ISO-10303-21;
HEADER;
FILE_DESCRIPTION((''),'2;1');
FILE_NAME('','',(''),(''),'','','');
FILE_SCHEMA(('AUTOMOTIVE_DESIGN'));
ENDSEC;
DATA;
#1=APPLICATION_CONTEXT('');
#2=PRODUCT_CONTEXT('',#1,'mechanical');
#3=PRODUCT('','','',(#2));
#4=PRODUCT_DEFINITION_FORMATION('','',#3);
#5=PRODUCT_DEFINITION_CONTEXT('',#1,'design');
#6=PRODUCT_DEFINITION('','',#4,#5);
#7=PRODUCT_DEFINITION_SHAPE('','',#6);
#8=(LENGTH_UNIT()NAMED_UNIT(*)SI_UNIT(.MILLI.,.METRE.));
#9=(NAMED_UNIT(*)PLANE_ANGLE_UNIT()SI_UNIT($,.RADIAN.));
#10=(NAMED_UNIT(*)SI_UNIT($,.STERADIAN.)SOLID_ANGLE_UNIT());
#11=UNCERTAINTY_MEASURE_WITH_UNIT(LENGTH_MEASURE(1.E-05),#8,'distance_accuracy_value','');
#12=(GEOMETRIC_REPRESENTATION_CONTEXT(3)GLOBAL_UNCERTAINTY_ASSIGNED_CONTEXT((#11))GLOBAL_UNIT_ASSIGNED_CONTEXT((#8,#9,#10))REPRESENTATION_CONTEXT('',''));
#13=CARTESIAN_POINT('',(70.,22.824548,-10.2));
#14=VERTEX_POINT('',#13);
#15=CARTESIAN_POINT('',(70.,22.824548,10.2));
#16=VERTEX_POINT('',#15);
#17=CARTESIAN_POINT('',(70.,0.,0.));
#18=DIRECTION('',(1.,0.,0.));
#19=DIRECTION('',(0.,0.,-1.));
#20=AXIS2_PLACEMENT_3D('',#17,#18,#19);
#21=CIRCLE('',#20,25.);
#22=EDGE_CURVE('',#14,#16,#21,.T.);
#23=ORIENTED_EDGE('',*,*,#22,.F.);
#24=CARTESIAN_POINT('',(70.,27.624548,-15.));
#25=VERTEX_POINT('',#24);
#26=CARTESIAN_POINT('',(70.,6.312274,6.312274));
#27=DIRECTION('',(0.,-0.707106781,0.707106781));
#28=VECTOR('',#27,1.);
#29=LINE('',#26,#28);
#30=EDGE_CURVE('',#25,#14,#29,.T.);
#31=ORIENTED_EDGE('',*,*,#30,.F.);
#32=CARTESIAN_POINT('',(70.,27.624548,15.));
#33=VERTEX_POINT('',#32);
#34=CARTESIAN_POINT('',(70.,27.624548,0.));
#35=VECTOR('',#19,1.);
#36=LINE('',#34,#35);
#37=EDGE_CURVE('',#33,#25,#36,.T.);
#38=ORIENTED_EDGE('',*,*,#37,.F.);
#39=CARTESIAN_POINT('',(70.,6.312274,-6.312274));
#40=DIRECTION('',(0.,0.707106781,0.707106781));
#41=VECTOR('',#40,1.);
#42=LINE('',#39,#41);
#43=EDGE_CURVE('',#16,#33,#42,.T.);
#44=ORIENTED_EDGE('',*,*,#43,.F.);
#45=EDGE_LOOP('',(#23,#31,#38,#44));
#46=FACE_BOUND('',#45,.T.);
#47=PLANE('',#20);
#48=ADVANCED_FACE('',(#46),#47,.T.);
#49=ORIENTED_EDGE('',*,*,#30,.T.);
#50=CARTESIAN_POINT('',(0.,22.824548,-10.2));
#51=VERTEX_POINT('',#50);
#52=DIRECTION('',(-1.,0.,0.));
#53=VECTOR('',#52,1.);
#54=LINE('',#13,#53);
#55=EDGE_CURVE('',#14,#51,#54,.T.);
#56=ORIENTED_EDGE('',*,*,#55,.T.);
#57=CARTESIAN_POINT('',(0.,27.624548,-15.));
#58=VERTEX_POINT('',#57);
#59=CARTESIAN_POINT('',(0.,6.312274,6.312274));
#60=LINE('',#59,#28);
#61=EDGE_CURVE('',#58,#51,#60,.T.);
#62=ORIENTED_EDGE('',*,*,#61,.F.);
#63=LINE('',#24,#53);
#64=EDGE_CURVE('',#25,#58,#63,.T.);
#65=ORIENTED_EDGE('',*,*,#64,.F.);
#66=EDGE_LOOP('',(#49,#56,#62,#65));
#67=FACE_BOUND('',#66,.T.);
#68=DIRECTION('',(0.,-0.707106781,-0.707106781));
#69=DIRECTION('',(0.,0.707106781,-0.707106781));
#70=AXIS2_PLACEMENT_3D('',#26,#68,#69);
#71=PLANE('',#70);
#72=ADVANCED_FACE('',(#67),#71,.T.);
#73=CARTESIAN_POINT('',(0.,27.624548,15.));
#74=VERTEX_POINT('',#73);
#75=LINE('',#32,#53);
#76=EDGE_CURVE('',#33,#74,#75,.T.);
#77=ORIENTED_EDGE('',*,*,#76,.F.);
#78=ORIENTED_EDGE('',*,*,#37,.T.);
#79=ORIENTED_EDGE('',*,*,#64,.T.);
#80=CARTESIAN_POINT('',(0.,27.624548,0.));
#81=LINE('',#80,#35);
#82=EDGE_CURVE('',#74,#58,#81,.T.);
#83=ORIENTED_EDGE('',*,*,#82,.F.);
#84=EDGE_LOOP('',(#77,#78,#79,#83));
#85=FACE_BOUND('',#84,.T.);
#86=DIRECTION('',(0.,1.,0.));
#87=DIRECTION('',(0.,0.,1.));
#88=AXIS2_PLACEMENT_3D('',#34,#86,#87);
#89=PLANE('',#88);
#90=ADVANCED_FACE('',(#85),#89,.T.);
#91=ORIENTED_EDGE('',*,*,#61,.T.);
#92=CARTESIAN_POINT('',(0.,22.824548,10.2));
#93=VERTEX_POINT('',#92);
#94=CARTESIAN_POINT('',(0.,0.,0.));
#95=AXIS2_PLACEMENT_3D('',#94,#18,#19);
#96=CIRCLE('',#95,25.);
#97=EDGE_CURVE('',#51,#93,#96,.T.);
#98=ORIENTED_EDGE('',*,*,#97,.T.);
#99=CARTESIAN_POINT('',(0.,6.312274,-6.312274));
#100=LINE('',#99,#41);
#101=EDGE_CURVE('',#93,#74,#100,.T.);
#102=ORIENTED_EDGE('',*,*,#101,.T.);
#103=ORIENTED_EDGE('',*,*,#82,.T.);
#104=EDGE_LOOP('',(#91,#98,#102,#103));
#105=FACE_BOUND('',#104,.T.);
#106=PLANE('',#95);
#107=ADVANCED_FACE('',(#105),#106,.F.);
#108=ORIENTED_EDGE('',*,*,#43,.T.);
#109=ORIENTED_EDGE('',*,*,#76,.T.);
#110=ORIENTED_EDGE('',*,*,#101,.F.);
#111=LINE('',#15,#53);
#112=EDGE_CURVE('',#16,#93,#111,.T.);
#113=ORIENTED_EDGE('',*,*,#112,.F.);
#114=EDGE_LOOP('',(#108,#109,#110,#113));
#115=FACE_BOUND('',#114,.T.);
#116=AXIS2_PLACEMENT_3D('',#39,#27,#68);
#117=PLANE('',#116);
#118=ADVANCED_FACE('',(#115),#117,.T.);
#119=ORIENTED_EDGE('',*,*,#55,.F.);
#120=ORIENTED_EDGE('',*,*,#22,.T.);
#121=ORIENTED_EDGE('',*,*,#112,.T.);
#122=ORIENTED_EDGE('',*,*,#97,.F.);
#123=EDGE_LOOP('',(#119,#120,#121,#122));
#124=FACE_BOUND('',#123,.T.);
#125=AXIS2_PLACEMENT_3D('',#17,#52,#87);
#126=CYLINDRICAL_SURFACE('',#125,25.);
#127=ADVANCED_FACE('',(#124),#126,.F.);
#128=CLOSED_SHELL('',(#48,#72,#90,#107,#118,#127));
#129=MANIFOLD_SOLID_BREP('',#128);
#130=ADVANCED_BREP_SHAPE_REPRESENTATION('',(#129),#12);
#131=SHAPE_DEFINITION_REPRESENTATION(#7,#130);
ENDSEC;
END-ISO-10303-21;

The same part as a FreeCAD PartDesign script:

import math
import FreeCAD as App
import Part
import Sketcher
from FreeCAD import Vector
Q = App.Units.Quantity

doc = App.newDocument("Part")
body = doc.addObject("PartDesign::Body", "Body")

sketch1 = body.newObject("Sketcher::SketchObject", "Sketch")
sketch1.AttachmentSupport = (doc.getObject("YZ_Plane"), [""])
sketch1.MapMode = "FlatFace"
sketch1.addGeometry([
    Part.LineSegment(Vector(28, 15, 0), Vector(23, 10, 0)),
    Part.ArcOfCircle(Part.Circle(Vector(0, 0, 0), Vector(0, 0, 1), 25), math.radians(-24), math.radians(24)),
    Part.LineSegment(Vector(23, -10, 0), Vector(28, -15, 0)),
    Part.LineSegment(Vector(28, -15, 0), Vector(28, 15, 0)),
], False)
sketch1.addConstraint([
    Sketcher.Constraint("Coincident", 0, 2, 1, 2),
    Sketcher.Constraint("Coincident", 1, 1, 2, 1),
    Sketcher.Constraint("Coincident", 2, 2, 3, 1),
    Sketcher.Constraint("Coincident", 3, 2, 0, 1),
    Sketcher.Constraint("Vertical", 3),
    Sketcher.Constraint("Coincident", 1, 3, -1, 1),
    Sketcher.Constraint("Perpendicular", 0, 2),
    Sketcher.Constraint("Vertical", 0, 2, 1, 1),
    Sketcher.Constraint("Equal", 0, 2),
    Sketcher.Constraint("Radius", 1, Q("25 mm")),
    Sketcher.Constraint("DistanceY", 3, 1, 3, 2, Q("30 mm")),
    Sketcher.Constraint("DistanceY", -1, 1, 0, 2, Q("10.2 mm")),
])
pad1 = body.newObject("PartDesign::Pad", "Pad")
pad1.Profile = sketch1
pad1.Length = 70

doc.recompute()
